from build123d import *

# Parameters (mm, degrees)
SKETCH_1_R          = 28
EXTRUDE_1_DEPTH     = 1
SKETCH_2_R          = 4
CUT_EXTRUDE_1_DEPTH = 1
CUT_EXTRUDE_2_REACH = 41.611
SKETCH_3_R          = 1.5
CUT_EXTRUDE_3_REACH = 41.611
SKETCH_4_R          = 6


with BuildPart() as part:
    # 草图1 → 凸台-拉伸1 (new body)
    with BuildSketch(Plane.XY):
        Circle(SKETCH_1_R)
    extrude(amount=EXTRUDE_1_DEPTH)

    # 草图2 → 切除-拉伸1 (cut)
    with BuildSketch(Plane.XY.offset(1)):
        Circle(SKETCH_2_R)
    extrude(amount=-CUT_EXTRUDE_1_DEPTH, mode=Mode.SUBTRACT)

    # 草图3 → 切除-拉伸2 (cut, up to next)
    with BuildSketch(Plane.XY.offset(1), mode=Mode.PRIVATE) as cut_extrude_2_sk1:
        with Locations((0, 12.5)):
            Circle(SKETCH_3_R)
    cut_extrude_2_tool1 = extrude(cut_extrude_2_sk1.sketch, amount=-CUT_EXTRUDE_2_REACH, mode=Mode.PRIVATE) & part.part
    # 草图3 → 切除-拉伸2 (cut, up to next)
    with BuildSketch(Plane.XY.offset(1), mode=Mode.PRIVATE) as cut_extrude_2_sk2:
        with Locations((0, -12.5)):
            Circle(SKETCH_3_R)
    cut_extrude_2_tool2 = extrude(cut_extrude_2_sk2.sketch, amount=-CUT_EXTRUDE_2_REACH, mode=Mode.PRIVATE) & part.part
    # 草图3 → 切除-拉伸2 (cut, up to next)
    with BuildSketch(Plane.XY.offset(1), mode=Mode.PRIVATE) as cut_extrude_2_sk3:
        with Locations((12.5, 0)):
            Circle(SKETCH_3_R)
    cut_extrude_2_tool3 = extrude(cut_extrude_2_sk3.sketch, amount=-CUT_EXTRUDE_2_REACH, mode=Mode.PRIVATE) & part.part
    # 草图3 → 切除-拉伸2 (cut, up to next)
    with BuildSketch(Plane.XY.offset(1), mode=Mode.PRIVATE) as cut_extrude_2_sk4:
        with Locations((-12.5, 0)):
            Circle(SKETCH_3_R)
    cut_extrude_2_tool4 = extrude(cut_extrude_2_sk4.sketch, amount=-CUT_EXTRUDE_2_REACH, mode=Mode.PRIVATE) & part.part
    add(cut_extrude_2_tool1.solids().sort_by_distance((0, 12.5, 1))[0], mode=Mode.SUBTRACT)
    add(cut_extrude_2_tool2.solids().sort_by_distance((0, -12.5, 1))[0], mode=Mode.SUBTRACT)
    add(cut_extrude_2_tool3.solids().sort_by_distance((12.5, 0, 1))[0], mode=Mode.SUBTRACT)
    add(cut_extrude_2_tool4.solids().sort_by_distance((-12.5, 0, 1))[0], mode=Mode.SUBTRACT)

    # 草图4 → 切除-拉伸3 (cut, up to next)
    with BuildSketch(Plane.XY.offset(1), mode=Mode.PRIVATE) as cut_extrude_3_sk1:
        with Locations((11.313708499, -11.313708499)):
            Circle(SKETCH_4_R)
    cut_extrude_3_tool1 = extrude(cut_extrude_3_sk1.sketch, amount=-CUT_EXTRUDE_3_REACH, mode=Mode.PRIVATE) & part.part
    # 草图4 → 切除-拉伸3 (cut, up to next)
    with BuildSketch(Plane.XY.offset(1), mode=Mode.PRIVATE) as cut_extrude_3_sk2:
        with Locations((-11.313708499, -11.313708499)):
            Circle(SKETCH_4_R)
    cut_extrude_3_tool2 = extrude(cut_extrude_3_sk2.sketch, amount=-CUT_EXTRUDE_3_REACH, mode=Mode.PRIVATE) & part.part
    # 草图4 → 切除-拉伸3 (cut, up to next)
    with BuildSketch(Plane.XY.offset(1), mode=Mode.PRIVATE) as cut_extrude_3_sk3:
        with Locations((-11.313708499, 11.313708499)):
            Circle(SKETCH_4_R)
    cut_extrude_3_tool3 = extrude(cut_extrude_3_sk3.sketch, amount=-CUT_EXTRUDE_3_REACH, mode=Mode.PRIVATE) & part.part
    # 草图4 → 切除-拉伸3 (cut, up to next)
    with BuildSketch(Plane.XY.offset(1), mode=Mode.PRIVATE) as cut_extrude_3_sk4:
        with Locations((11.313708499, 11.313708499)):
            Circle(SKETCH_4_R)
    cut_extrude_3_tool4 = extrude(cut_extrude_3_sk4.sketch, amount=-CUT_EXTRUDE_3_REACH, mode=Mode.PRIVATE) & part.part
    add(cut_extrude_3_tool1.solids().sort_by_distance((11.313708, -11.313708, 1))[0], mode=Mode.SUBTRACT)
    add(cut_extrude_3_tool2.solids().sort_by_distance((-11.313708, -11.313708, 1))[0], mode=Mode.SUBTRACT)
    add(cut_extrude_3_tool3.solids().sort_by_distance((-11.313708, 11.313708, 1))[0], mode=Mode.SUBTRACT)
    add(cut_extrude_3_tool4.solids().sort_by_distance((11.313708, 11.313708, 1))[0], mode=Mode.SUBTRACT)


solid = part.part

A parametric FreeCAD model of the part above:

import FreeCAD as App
import Part
import Sketcher

V = App.Vector
Q = App.Units.Quantity

doc = App.newDocument("Part")
body = doc.addObject("PartDesign::Body", "Body")

# Sketch on XY plane
sketch1 = body.newObject("Sketcher::SketchObject", "Sketch")
sketch1.AttachmentSupport = (doc.getObject("XY_Plane"), [""])
sketch1.MapMode = "FlatFace"
sketch1.addGeometry(Part.Circle(V(0, 0, 0), V(0, 0, 1), 28), False)
sketch1.addConstraint([
    Sketcher.Constraint("Coincident", 0, 3, -1, 1),
    Sketcher.Constraint("Diameter", 0, Q("56 mm")),
])
pad1 = body.newObject("PartDesign::Pad", "Pad")
pad1.Profile = sketch1
pad1.Length = 1

# Sketch on XY plane
sketch2 = body.newObject("Sketcher::SketchObject", "Sketch001")
sketch2.AttachmentSupport = (doc.getObject("XY_Plane"), [""])
sketch2.MapMode = "FlatFace"
sketch2.AttachmentOffset = App.Placement(V(0, 0, 1), App.Rotation())
sketch2.addGeometry(Part.Circle(V(0, 0, 0), V(0, 0, 1), 4), False)
sketch2.addConstraint([
    Sketcher.Constraint("Coincident", 0, 3, -1, 1),
    Sketcher.Constraint("Diameter", 0, Q("8 mm")),
])
pocket1 = body.newObject("PartDesign::Pocket", "Pocket")
pocket1.Profile = sketch2
pocket1.Length = 1

# Sketch on XY plane
sketch3 = body.newObject("Sketcher::SketchObject", "Sketch002")
sketch3.AttachmentSupport = (doc.getObject("XY_Plane"), [""])
sketch3.MapMode = "FlatFace"
sketch3.AttachmentOffset = App.Placement(V(0, 0, 1), App.Rotation())
sketch3.addGeometry(Part.Circle(V(0, 12.5, 0), V(0, 0, 1), 1.5), False)
sketch3.addConstraint([
    Sketcher.Constraint("PointOnObject", 0, 3, -2),
    Sketcher.Constraint("Diameter", 0, Q("3 mm")),
    Sketcher.Constraint("DistanceY", -1, 1, 0, 3, Q("12.5 mm")),
])
pocket2 = body.newObject("PartDesign::Pocket", "Pocket001")
pocket2.Profile = sketch3
pocket2.Type = "UpToFirst"

# Sketch on XY plane
sketch4 = body.newObject("Sketcher::SketchObject", "Sketch003")
sketch4.AttachmentSupport = (doc.getObject("XY_Plane"), [""])
sketch4.MapMode = "FlatFace"
sketch4.AttachmentOffset = App.Placement(V(0, 0, 1), App.Rotation())
sketch4.addGeometry(Part.Circle(V(0, -12.5, 0), V(0, 0, 1), 1.5), False)
sketch4.addConstraint([
    Sketcher.Constraint("PointOnObject", 0, 3, -2),
    Sketcher.Constraint("Diameter", 0, Q("3 mm")),
    Sketcher.Constraint("DistanceY", 0, 3, -1, 1, Q("12.5 mm")),
])
pocket3 = body.newObject("PartDesign::Pocket", "Pocket002")
pocket3.Profile = sketch4
pocket3.Type = "UpToFirst"

# Sketch on XY plane
sketch5 = body.newObject("Sketcher::SketchObject", "Sketch004")
sketch5.AttachmentSupport = (doc.getObject("XY_Plane"), [""])
sketch5.MapMode = "FlatFace"
sketch5.AttachmentOffset = App.Placement(V(0, 0, 1), App.Rotation())
sketch5.addGeometry(Part.Circle(V(12.5, 0, 0), V(0, 0, 1), 1.5), False)
sketch5.addConstraint([
    Sketcher.Constraint("PointOnObject", 0, 3, -1),
    Sketcher.Constraint("Diameter", 0, Q("3 mm")),
    Sketcher.Constraint("DistanceX", -1, 1, 0, 3, Q("12.5 mm")),
])
pocket4 = body.newObject("PartDesign::Pocket", "Pocket003")
pocket4.Profile = sketch5
pocket4.Type = "UpToFirst"

# Sketch on XY plane
sketch6 = body.newObject("Sketcher::SketchObject", "Sketch005")
sketch6.AttachmentSupport = (doc.getObject("XY_Plane"), [""])
sketch6.MapMode = "FlatFace"
sketch6.AttachmentOffset = App.Placement(V(0, 0, 1), App.Rotation())
sketch6.addGeometry(Part.Circle(V(-12.5, 0, 0), V(0, 0, 1), 1.5), False)
sketch6.addConstraint([
    Sketcher.Constraint("PointOnObject", 0, 3, -1),
    Sketcher.Constraint("Diameter", 0, Q("3 mm")),
    Sketcher.Constraint("DistanceX", 0, 3, -1, 1, Q("12.5 mm")),
])
pocket5 = body.newObject("PartDesign::Pocket", "Pocket004")
pocket5.Profile = sketch6
pocket5.Type = "UpToFirst"

# Sketch on XY plane
sketch7 = body.newObject("Sketcher::SketchObject", "Sketch006")
sketch7.AttachmentSupport = (doc.getObject("XY_Plane"), [""])
sketch7.MapMode = "FlatFace"
sketch7.AttachmentOffset = App.Placement(V(0, 0, 1), App.Rotation())
sketch7.addGeometry(Part.Circle(V(11, -11, 0), V(0, 0, 1), 6), False)
sketch7.addConstraint([
    Sketcher.Constraint("Diameter", 0, Q("12 mm")),
    Sketcher.Constraint("DistanceX", -1, 1, 0, 3, Q("11.313708 mm")),
    Sketcher.Constraint("DistanceY", 0, 3, -1, 1, Q("11.313708 mm")),
])
pocket6 = body.newObject("PartDesign::Pocket", "Pocket005")
pocket6.Profile = sketch7
pocket6.Type = "UpToFirst"

# Sketch on XY plane
sketch8 = body.newObject("Sketcher::SketchObject", "Sketch007")
sketch8.AttachmentSupport = (doc.getObject("XY_Plane"), [""])
sketch8.MapMode = "FlatFace"
sketch8.AttachmentOffset = App.Placement(V(0, 0, 1), App.Rotation())
sketch8.addGeometry(Part.Circle(V(-11, -11, 0), V(0, 0, 1), 6), False)
sketch8.addConstraint([
    Sketcher.Constraint("Diameter", 0, Q("12 mm")),
    Sketcher.Constraint("DistanceX", 0, 3, -1, 1, Q("11.313708 mm")),
    Sketcher.Constraint("DistanceY", 0, 3, -1, 1, Q("11.313708 mm")),
])
pocket7 = body.newObject("PartDesign::Pocket", "Pocket006")
pocket7.Profile = sketch8
pocket7.Type = "UpToFirst"

# Sketch on XY plane
sketch9 = body.newObject("Sketcher::SketchObject", "Sketch008")
sketch9.AttachmentSupport = (doc.getObject("XY_Plane"), [""])
sketch9.MapMode = "FlatFace"
sketch9.AttachmentOffset = App.Placement(V(0, 0, 1), App.Rotation())
sketch9.addGeometry(Part.Circle(V(-11, 11, 0), V(0, 0, 1), 6), False)
sketch9.addConstraint([
    Sketcher.Constraint("Diameter", 0, Q("12 mm")),
    Sketcher.Constraint("DistanceX", 0, 3, -1, 1, Q("11.313708 mm")),
    Sketcher.Constraint("DistanceY", -1, 1, 0, 3, Q("11.313708 mm")),
])
pocket8 = body.newObject("PartDesign::Pocket", "Pocket007")
pocket8.Profile = sketch9
pocket8.Type = "UpToFirst"

# Sketch on XY plane
sketch10 = body.newObject("Sketcher::SketchObject", "Sketch009")
sketch10.AttachmentSupport = (doc.getObject("XY_Plane"), [""])
sketch10.MapMode = "FlatFace"
sketch10.AttachmentOffset = App.Placement(V(0, 0, 1), App.Rotation())
sketch10.addGeometry(Part.Circle(V(11, 11, 0), V(0, 0, 1), 6), False)
sketch10.addConstraint([
    Sketcher.Constraint("Diameter", 0, Q("12 mm")),
    Sketcher.Constraint("DistanceX", -1, 1, 0, 3, Q("11.313708 mm")),
    Sketcher.Constraint("DistanceY", -1, 1, 0, 3, Q("11.313708 mm")),
])
pocket9 = body.newObject("PartDesign::Pocket", "Pocket008")
pocket9.Profile = sketch10
pocket9.Type = "UpToFirst"

doc.recompute()
